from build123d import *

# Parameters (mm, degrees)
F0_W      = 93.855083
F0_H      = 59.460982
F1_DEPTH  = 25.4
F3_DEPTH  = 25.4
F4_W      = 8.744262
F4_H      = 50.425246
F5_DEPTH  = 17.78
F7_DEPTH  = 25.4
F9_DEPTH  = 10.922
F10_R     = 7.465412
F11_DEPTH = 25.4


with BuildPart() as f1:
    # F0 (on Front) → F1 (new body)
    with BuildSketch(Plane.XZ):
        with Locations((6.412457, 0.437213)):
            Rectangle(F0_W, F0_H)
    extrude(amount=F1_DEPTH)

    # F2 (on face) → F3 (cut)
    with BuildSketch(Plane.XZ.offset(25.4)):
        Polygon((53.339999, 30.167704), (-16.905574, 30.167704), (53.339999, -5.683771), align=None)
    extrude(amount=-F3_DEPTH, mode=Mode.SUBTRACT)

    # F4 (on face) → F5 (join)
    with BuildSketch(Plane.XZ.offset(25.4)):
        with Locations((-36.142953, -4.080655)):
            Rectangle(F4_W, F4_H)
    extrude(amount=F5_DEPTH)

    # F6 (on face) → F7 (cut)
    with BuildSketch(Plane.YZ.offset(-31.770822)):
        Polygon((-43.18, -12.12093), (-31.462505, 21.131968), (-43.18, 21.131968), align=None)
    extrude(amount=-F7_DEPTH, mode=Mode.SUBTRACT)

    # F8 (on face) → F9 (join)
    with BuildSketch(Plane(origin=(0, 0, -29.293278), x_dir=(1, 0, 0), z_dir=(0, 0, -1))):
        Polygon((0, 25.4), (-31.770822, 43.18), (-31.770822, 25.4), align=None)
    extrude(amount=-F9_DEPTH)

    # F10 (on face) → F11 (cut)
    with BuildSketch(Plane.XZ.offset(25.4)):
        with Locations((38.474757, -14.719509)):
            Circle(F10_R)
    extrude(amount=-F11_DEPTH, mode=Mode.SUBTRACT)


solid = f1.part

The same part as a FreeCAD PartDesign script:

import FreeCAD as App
import Part
import Sketcher
Q = App.Units.Quantity


def add_polygon(sketch, points):
    """Adds a closed chain of lines whose ends are joined by coincident constraints."""
    first, n = sketch.GeometryCount, len(points)
    for a, b in zip(points, points[1:] + points[:1]):
        sketch.addGeometry(Part.LineSegment(App.Vector(*a, 0), App.Vector(*b, 0)), False)
    for i in range(n):
        sketch.addConstraint(Sketcher.Constraint("Coincident", first + i, 2, first + (i + 1) % n, 1))

doc = App.newDocument("Part")
body = doc.addObject("PartDesign::Body", "Body")

# Sketch on XZ plane
sketch1 = body.newObject("Sketcher::SketchObject", "Sketch")
sketch1.AttachmentSupport = (doc.getObject("XZ_Plane"), [""])
sketch1.MapMode = "FlatFace"
add_polygon(sketch1, [(-41, 30), (-41, -29), (53, -29), (53, 30)])  # lines 0-3
sketch1.addConstraint([
    Sketcher.Constraint("Vertical", 0),
    Sketcher.Constraint("Horizontal", 1),
    Sketcher.Constraint("Vertical", 2),
    Sketcher.Constraint("Horizontal", 3),
    Sketcher.Constraint("DistanceX", -1, 1, 1, 2, Q("2.0999999 in")),
    Sketcher.Constraint("DistanceX", 1, 1, 1, 2, Q("93.855083 mm")),
    Sketcher.Constraint("DistanceY", 0, 2, 0, 1, Q("59.460982 mm")),
    Sketcher.Constraint("DistanceY", 0, 2, -1, 1, Q("29.293278 mm")),
])
pad1 = body.newObject("PartDesign::Pad", "Pad")
pad1.Profile = sketch1
pad1.Length = Q("1 in")

# Sketch on XZ plane
sketch2 = body.newObject("Sketcher::SketchObject", "Sketch001")
sketch2.AttachmentSupport = (doc.getObject("XZ_Plane"), [""])
sketch2.MapMode = "FlatFace"
sketch2.AttachmentOffset = App.Placement(App.Vector(0, 0, 1 * 25.4), App.Rotation())
add_polygon(sketch2, [(53, 30), (-17, 30), (53, -6)])  # lines 0-2
sketch2.addConstraint([
    Sketcher.Constraint("Horizontal", 0),
    Sketcher.Constraint("Vertical", 2),
    Sketcher.Constraint("DistanceX", -1, 1, 1, 2, Q("2.1 in")),
    Sketcher.Constraint("Distance", 1, Q("78.865511 mm")),
    Sketcher.Constraint("DistanceX", 0, 2, 0, 1, Q("70.245573 mm")),
    Sketcher.Constraint("DistanceY", 1, 2, -1, 1, Q("5.683771 mm")),
])
pocket1 = body.newObject("PartDesign::Pocket", "Pocket")
pocket1.Profile = sketch2
pocket1.Length = Q("1 in")

# Sketch on XZ plane
sketch3 = body.newObject("Sketcher::SketchObject", "Sketch002")
sketch3.AttachmentSupport = (doc.getObject("XZ_Plane"), [""])
sketch3.MapMode = "FlatFace"
sketch3.AttachmentOffset = App.Placement(App.Vector(0, 0, 1 * 25.4), App.Rotation())
add_polygon(sketch3, [(-41, 21), (-41, -29), (-32, -29), (-32, 21)])  # lines 0-3
sketch3.addConstraint([
    Sketcher.Constraint("Vertical", 0),
    Sketcher.Constraint("Horizontal", 1),
    Sketcher.Constraint("Vertical", 2),
    Sketcher.Constraint("Horizontal", 3),
    Sketcher.Constraint("DistanceX", 1, 1, 1, 2, Q("8.744262 mm")),
    Sketcher.Constraint("DistanceY", 0, 2, 0, 1, Q("50.425246 mm")),
    Sketcher.Constraint("DistanceY", 0, 2, -1, 1, Q("29.293278 mm")),
    Sketcher.Constraint("DistanceX", 1, 2, -1, 1, Q("31.770822 mm")),
])
pad2 = body.newObject("PartDesign::Pad", "Pad001")
pad2.Profile = sketch3
pad2.Length = Q("0.7 in")

# Sketch on YZ plane
sketch4 = body.newObject("Sketcher::SketchObject", "Sketch003")
sketch4.AttachmentSupport = (doc.getObject("YZ_Plane"), [""])
sketch4.MapMode = "FlatFace"
sketch4.AttachmentOffset = App.Placement(App.Vector(0, 0, -31.770822), App.Rotation())
add_polygon(sketch4, [(-43, -12), (-31, 21), (-43, 21)])  # lines 0-2
sketch4.addConstraint([
    Sketcher.Constraint("Horizontal", 1),
    Sketcher.Constraint("Vertical", 2),
    Sketcher.Constraint("DistanceX", 1, 2, -1, 1, Q("1.7 in")),
    Sketcher.Constraint("DistanceY", 2, 2, 2, 1, Q("33.252898 mm")),
    Sketcher.Constraint("DistanceX", 1, 2, 1, 1, Q("11.717495 mm")),
    Sketcher.Constraint("DistanceY", -1, 1, 0, 2, Q("21.131968 mm")),
])
pocket2 = body.newObject("PartDesign::Pocket", "Pocket001")
pocket2.Profile = sketch4
pocket2.Length = Q("1 in")

# Sketch on XY plane
sketch5 = body.newObject("Sketcher::SketchObject", "Sketch004")
sketch5.AttachmentSupport = (doc.getObject("XY_Plane"), [""])
sketch5.MapMode = "FlatFace"
sketch5.AttachmentOffset = App.Placement(App.Vector(0, 0, -29.293278), App.Rotation())
add_polygon(sketch5, [(0, -25), (-32, -43), (-32, -25)])  # lines 0-2
sketch5.addConstraint([
    Sketcher.Constraint("Vertical", 1),
    Sketcher.Constraint("Horizontal", 2),
    Sketcher.Constraint("PointOnObject", 2, 2, -2),
    Sketcher.Constraint("DistanceY", 1, 1, 1, 2, Q("0.7 in")),
    Sketcher.Constraint("DistanceY", 1, 2, -1, 1, Q("1 in")),
    Sketcher.Constraint("DistanceX", 2, 1, 2, 2, Q("31.770822 mm")),
])
pad3 = body.newObject("PartDesign::Pad", "Pad002")
pad3.Profile = sketch5
pad3.Length = Q("0.43 in")

# Sketch on XZ plane
sketch6 = body.newObject("Sketcher::SketchObject", "Sketch005")
sketch6.AttachmentSupport = (doc.getObject("XZ_Plane"), [""])
sketch6.MapMode = "FlatFace"
sketch6.AttachmentOffset = App.Placement(App.Vector(0, 0, 1 * 25.4), App.Rotation())
sketch6.addGeometry(Part.Circle(App.Vector(38, -15, 0), App.Vector(0, 0, 1), 7), False)
sketch6.addConstraint([
    Sketcher.Constraint("Diameter", 0, Q("14.930824 mm")),
    Sketcher.Constraint("DistanceY", 0, 3, -1, 1, Q("14.719509 mm")),
    Sketcher.Constraint("DistanceX", -1, 1, 0, 3, Q("38.474757 mm")),
])
pocket3 = body.newObject("PartDesign::Pocket", "Pocket002")
pocket3.Profile = sketch6
pocket3.Length = Q("1 in")

doc.recompute()
